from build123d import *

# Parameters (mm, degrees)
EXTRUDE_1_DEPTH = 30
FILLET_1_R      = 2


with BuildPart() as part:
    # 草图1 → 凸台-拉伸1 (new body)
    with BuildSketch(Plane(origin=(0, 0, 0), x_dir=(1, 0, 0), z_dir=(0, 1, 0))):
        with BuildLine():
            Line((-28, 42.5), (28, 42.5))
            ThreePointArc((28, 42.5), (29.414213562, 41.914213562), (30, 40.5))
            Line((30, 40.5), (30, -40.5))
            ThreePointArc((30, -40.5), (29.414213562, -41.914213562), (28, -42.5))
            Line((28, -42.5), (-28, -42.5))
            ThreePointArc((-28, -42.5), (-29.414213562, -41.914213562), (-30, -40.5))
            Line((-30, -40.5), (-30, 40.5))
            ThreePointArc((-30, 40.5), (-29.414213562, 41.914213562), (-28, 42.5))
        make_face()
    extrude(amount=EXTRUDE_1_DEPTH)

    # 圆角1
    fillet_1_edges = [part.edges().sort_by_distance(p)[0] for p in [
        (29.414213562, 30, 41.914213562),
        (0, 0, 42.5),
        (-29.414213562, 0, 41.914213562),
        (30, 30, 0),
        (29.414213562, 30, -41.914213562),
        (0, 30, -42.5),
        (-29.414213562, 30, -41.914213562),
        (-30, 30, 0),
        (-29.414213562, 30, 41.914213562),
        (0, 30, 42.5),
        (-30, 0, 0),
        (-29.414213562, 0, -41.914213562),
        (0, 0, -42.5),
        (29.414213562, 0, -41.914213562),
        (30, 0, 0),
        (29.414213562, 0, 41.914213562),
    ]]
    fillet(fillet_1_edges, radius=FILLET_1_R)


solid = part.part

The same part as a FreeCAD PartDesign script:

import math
import FreeCAD as App
import Part
import Sketcher
Q = App.Units.Quantity


def edges_at(feature, points):
    """Names of the edges that pass closest to the given points."""
    edges = feature.Shape.Edges
    near = lambda p: min(range(len(edges)), key=lambda i: edges[i].distToShape(Part.Vertex(*p))[0])
    return sorted({f"Edge{near(p) + 1}" for p in points})

doc = App.newDocument("Part")
body = doc.addObject("PartDesign::Body", "Body")

sketch1 = body.newObject("Sketcher::SketchObject", "Sketch")
sketch1.AttachmentSupport = (doc.getObject("XZ_Plane"), [""])
sketch1.MapMode = "FlatFace"
sketch1.addGeometry(Part.LineSegment(App.Vector(28, -42.5, 0), App.Vector(-28, -42.5, 0)), False)
sketch1.addGeometry(Part.ArcOfCircle(Part.Circle(App.Vector(-28, -40.5, 0), App.Vector(0, 0, 1), 2), math.radians(-180), math.radians(-90)), False)
sketch1.addGeometry(Part.LineSegment(App.Vector(-30, -40.5, 0), App.Vector(-30, 40.5, 0)), False)
sketch1.addGeometry(Part.ArcOfCircle(Part.Circle(App.Vector(-28, 40.5, 0), App.Vector(0, 0, 1), 2), math.radians(90), math.radians(180)), False)
sketch1.addGeometry(Part.LineSegment(App.Vector(-28, 42.5, 0), App.Vector(28, 42.5, 0)), False)
sketch1.addGeometry(Part.ArcOfCircle(Part.Circle(App.Vector(28, 40.5, 0), App.Vector(0, 0, 1), 2), math.radians(0), math.radians(90)), False)
sketch1.addGeometry(Part.LineSegment(App.Vector(30, 40.5, 0), App.Vector(30, -40.5, 0)), False)
sketch1.addGeometry(Part.ArcOfCircle(Part.Circle(App.Vector(28, -40.5, 0), App.Vector(0, 0, 1), 2), math.radians(-90), math.radians(0)), False)
sketch1.addConstraint(Sketcher.Constraint("Tangent", 0, 2, 1, 2))
sketch1.addConstraint(Sketcher.Constraint("Tangent", 1, 1, 2, 1))
sketch1.addConstraint(Sketcher.Constraint("Tangent", 2, 2, 3, 2))
sketch1.addConstraint(Sketcher.Constraint("Tangent", 3, 1, 4, 1))
sketch1.addConstraint(Sketcher.Constraint("Tangent", 4, 2, 5, 2))
sketch1.addConstraint(Sketcher.Constraint("Tangent", 5, 1, 6, 1))
sketch1.addConstraint(Sketcher.Constraint("Tangent", 6, 2, 7, 2))
sketch1.addConstraint(Sketcher.Constraint("Tangent", 7, 1, 0, 1))
sketch1.addConstraint(Sketcher.Constraint("Horizontal", 0))
sketch1.addConstraint(Sketcher.Constraint("Vertical", 2))
sketch1.addConstraint(Sketcher.Constraint("Horizontal", 4))
sketch1.addConstraint(Sketcher.Constraint("Vertical", 6))
sketch1.addConstraint(Sketcher.Constraint("Equal", 1, 3))
sketch1.addConstraint(Sketcher.Constraint("Equal", 3, 5))
sketch1.addConstraint(Sketcher.Constraint("Equal", 5, 7))
sketch1.addConstraint(Sketcher.Constraint("Symmetric", 1, 3, 5, 3, -1, 1))
sketch1.addConstraint(Sketcher.Constraint("Radius", 1, Q("2 mm")))
sketch1.addConstraint(Sketcher.Constraint("DistanceX", 0, 2, 0, 1, Q("56 mm")))
sketch1.addConstraint(Sketcher.Constraint("DistanceY", 2, 1, 2, 2, Q("81 mm")))
pad1 = body.newObject("PartDesign::Pad", "Pad")
pad1.Profile = sketch1
pad1.Length = 30
pad1.Reversed = True
doc.recompute()

fillet = body.newObject("PartDesign::Fillet", "Fillet")
fillet.Base = (pad1, edges_at(pad1, [
    (29.414, 30, 41.914),
    (0, 0, 42.5),
    (-29.414, 0, 41.914),
    (30, 30, 0),
    (29.414, 30, -41.914),
    (0, 30, -42.5),
    (-29.414, 30, -41.914),
    (-30, 30, 0),
    (-29.414, 30, 41.914),
    (0, 30, 42.5),
    (-30, 0, 0),
    (-29.414, 0, -41.914),
    (0, 0, -42.5),
    (29.414, 0, -41.914),
    (30, 0, 0),
    (29.414, 0, 41.914),
]))
fillet.Radius = 2

doc.recompute()
